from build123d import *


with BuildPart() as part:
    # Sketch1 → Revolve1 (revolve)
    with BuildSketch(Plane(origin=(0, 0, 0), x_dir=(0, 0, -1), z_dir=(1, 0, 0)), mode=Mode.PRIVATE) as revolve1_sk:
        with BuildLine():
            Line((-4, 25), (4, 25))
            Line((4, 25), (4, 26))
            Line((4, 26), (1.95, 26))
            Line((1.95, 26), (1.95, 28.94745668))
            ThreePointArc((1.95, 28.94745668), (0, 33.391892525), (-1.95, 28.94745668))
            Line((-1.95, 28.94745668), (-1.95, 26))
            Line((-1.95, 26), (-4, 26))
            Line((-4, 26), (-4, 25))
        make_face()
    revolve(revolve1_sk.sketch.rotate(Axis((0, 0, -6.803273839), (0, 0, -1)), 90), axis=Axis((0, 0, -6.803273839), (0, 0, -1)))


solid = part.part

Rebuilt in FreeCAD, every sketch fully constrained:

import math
import FreeCAD as App
import Part
import Sketcher

doc = App.newDocument("Part")
params = doc.addObject("Spreadsheet::Sheet", "Params")
for row, (alias, value) in enumerate([
    ("sketch1_width", "1 mm"),
    ("sketch1_height", "8 mm"),
    ("sketch1_radius", "2.65 mm"),
    ("sketch1_height2", "2.05 mm"),
    ("revolution_angle", "360 deg"),
], start=1):
    params.set(f"A{row}", alias)
    params.set(f"B{row}", "=" + value)
    params.setAlias(f"B{row}", alias)

body = doc.addObject("PartDesign::Body", "Body")

sketch1 = body.newObject("Sketcher::SketchObject", "Sketch")
sketch1.AttachmentSupport = (doc.getObject("YZ_Plane"), [""])
sketch1.MapMode = "FlatFace"
sketch1.addGeometry(Part.LineSegment(App.Vector(25, 4, 0), App.Vector(25, -4, 0)), False)
sketch1.addGeometry(Part.LineSegment(App.Vector(25, -4, 0), App.Vector(26, -4, 0)), False)
sketch1.addGeometry(Part.LineSegment(App.Vector(26, -4, 0), App.Vector(26, -1.9, 0)), False)
sketch1.addGeometry(Part.LineSegment(App.Vector(26, -1.9, 0), App.Vector(28.9, -1.9, 0)), False)
sketch1.addGeometry(Part.ArcOfCircle(Part.Circle(App.Vector(30.7, 0, 0), App.Vector(0, 0, 1), 2.6), math.radians(-133), math.radians(133)), False)
sketch1.addGeometry(Part.LineSegment(App.Vector(28.9, 1.9, 0), App.Vector(26, 1.9, 0)), False)
sketch1.addGeometry(Part.LineSegment(App.Vector(26, 1.9, 0), App.Vector(26, 4, 0)), False)
sketch1.addGeometry(Part.LineSegment(App.Vector(26, 4, 0), App.Vector(25, 4, 0)), False)
sketch1.addConstraint(Sketcher.Constraint("Coincident", 0, 2, 1, 1))
sketch1.addConstraint(Sketcher.Constraint("Coincident", 1, 2, 2, 1))
sketch1.addConstraint(Sketcher.Constraint("Coincident", 2, 2, 3, 1))
sketch1.addConstraint(Sketcher.Constraint("Coincident", 3, 2, 4, 1))
sketch1.addConstraint(Sketcher.Constraint("Coincident", 4, 2, 5, 1))
sketch1.addConstraint(Sketcher.Constraint("Coincident", 5, 2, 6, 1))
sketch1.addConstraint(Sketcher.Constraint("Coincident", 6, 2, 7, 1))
sketch1.addConstraint(Sketcher.Constraint("Coincident", 7, 2, 0, 1))
sketch1.addConstraint(Sketcher.Constraint("Vertical", 0))
sketch1.addConstraint(Sketcher.Constraint("Horizontal", 1))
sketch1.addConstraint(Sketcher.Constraint("Vertical", 2))
sketch1.addConstraint(Sketcher.Constraint("Horizontal", 3))
sketch1.addConstraint(Sketcher.Constraint("Horizontal", 5))
sketch1.addConstraint(Sketcher.Constraint("Vertical", 6))
sketch1.addConstraint(Sketcher.Constraint("Horizontal", 7))
sketch1.addConstraint(Sketcher.Constraint("Symmetric", 3, 2, 4, 2, -1))
sketch1.addConstraint(Sketcher.Constraint("Symmetric", 1, 2, 6, 2, -1))
sketch1.addConstraint(Sketcher.Constraint("DistanceX", 1, 1, 1, 2, 1.0))
sketch1.addConstraint(Sketcher.Constraint("DistanceY", 0, 2, 0, 1, 8.0))
sketch1.addConstraint(Sketcher.Constraint("Radius", 4, 2.65))
sketch1.addConstraint(Sketcher.Constraint("DistanceX", -1, 1, 0, 2, 25.0))
sketch1.addConstraint(Sketcher.Constraint("DistanceY", 2, 1, 2, 2, 2.05))
sketch1.addConstraint(Sketcher.Constraint("DistanceX", 3, 1, 3, 2, 2.947457))
sketch1.setExpression("Constraints[17]", "Params.sketch1_width")
sketch1.setExpression("Constraints[18]", "Params.sketch1_height")
sketch1.setExpression("Constraints[19]", "Params.sketch1_radius")
sketch1.setExpression("Constraints[21]", "Params.sketch1_height2")
revolution = body.newObject("PartDesign::Revolution", "Revolution")
revolution.Profile = sketch1
revolution.ReferenceAxis = (sketch1, ["V_Axis"])
revolution.setExpression("Angle", "Params.revolution_angle")

doc.recompute()
